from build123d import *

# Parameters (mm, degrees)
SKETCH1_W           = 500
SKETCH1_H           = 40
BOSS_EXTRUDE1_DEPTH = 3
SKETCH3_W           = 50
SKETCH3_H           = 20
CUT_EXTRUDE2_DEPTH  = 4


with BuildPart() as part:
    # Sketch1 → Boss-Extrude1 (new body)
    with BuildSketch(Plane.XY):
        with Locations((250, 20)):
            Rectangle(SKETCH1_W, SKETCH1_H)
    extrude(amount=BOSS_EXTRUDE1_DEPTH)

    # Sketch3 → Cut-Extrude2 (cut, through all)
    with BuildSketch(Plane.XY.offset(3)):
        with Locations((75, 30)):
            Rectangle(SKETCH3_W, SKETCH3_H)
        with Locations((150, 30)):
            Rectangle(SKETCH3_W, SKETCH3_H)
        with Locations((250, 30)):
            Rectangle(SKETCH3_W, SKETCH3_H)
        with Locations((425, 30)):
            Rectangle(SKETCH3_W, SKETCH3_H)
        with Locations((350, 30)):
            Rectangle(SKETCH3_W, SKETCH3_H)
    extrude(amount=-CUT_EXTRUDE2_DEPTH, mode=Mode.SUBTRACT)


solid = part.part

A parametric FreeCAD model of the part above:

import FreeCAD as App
import Part
import Sketcher
from FreeCAD import Vector
Q = App.Units.Quantity

doc = App.newDocument("Part")
body = doc.addObject("PartDesign::Body", "Body")

# Sketch on XY plane
sketch1 = body.newObject("Sketcher::SketchObject", "Sketch")
sketch1.AttachmentSupport = (doc.getObject("XY_Plane"), [""])
sketch1.MapMode = "FlatFace"
sketch1.addGeometry([
    Part.LineSegment(Vector(0, 40, 0), Vector(0, 0, 0)),
    Part.LineSegment(Vector(0, 0, 0), Vector(500, 0, 0)),
    Part.LineSegment(Vector(500, 0, 0), Vector(500, 40, 0)),
    Part.LineSegment(Vector(500, 40, 0), Vector(0, 40, 0)),
], False)
sketch1.addConstraint([
    Sketcher.Constraint("Coincident", 0, 2, 1, 1),
    Sketcher.Constraint("Coincident", 1, 2, 2, 1),
    Sketcher.Constraint("Coincident", 2, 2, 3, 1),
    Sketcher.Constraint("Coincident", 3, 2, 0, 1),
    Sketcher.Constraint("Vertical", 0),
    Sketcher.Constraint("Horizontal", 1),
    Sketcher.Constraint("Vertical", 2),
    Sketcher.Constraint("Horizontal", 3),
    Sketcher.Constraint("Coincident", 0, 2, -1, 1),
    Sketcher.Constraint("DistanceX", 1, 1, 1, 2, Q("500 mm")),
    Sketcher.Constraint("DistanceY", 0, 2, 0, 1, Q("40 mm")),
])
pad1 = body.newObject("PartDesign::Pad", "Pad")
pad1.Profile = sketch1
pad1.Length = 3

# Sketch on XY plane
sketch2 = body.newObject("Sketcher::SketchObject", "Sketch001")
sketch2.AttachmentSupport = (doc.getObject("XY_Plane"), [""])
sketch2.MapMode = "FlatFace"
sketch2.AttachmentOffset = App.Placement(Vector(0, 0, 3), App.Rotation())
sketch2.addGeometry([
    Part.LineSegment(Vector(50, 40, 0), Vector(50, 20, 0)),  # 0
    Part.LineSegment(Vector(50, 20, 0), Vector(100, 20, 0)),  # 1
    Part.LineSegment(Vector(100, 20, 0), Vector(100, 40, 0)),  # 2
    Part.LineSegment(Vector(100, 40, 0), Vector(50, 40, 0)),  # 3
    Part.LineSegment(Vector(125, 40, 0), Vector(125, 20, 0)),  # 4
    Part.LineSegment(Vector(125, 20, 0), Vector(175, 20, 0)),  # 5
    Part.LineSegment(Vector(175, 20, 0), Vector(175, 40, 0)),  # 6
    Part.LineSegment(Vector(175, 40, 0), Vector(125, 40, 0)),  # 7
    Part.LineSegment(Vector(225, 40, 0), Vector(225, 20, 0)),  # 8
    Part.LineSegment(Vector(225, 20, 0), Vector(275, 20, 0)),  # 9
    Part.LineSegment(Vector(275, 20, 0), Vector(275, 40, 0)),  # 10
    Part.LineSegment(Vector(275, 40, 0), Vector(225, 40, 0)),  # 11
    Part.LineSegment(Vector(400, 40, 0), Vector(400, 20, 0)),  # 12
    Part.LineSegment(Vector(400, 20, 0), Vector(450, 20, 0)),  # 13
    Part.LineSegment(Vector(450, 20, 0), Vector(450, 40, 0)),  # 14
    Part.LineSegment(Vector(450, 40, 0), Vector(400, 40, 0)),  # 15
    Part.LineSegment(Vector(325, 40, 0), Vector(325, 20, 0)),  # 16
    Part.LineSegment(Vector(325, 20, 0), Vector(375, 20, 0)),  # 17
    Part.LineSegment(Vector(375, 20, 0), Vector(375, 40, 0)),  # 18
    Part.LineSegment(Vector(375, 40, 0), Vector(325, 40, 0)),  # 19
], False)
sketch2.addConstraint([
    Sketcher.Constraint("Coincident", 0, 2, 1, 1),
    Sketcher.Constraint("Coincident", 1, 2, 2, 1),
    Sketcher.Constraint("Coincident", 2, 2, 3, 1),
    Sketcher.Constraint("Coincident", 3, 2, 0, 1),
    Sketcher.Constraint("Coincident", 4, 2, 5, 1),
    Sketcher.Constraint("Coincident", 5, 2, 6, 1),
    Sketcher.Constraint("Coincident", 6, 2, 7, 1),
    Sketcher.Constraint("Coincident", 7, 2, 4, 1),
    Sketcher.Constraint("Coincident", 8, 2, 9, 1),
    Sketcher.Constraint("Coincident", 9, 2, 10, 1),
    Sketcher.Constraint("Coincident", 10, 2, 11, 1),
    Sketcher.Constraint("Coincident", 11, 2, 8, 1),
    Sketcher.Constraint("Coincident", 12, 2, 13, 1),
    Sketcher.Constraint("Coincident", 13, 2, 14, 1),
    Sketcher.Constraint("Coincident", 14, 2, 15, 1),
    Sketcher.Constraint("Coincident", 15, 2, 12, 1),
    Sketcher.Constraint("Coincident", 16, 2, 17, 1),
    Sketcher.Constraint("Coincident", 17, 2, 18, 1),
    Sketcher.Constraint("Coincident", 18, 2, 19, 1),
    Sketcher.Constraint("Coincident", 19, 2, 16, 1),
    Sketcher.Constraint("Vertical", 0),
    Sketcher.Constraint("Horizontal", 1),
    Sketcher.Constraint("Vertical", 2),
    Sketcher.Constraint("Horizontal", 3),
    Sketcher.Constraint("Vertical", 4),
    Sketcher.Constraint("Horizontal", 5),
    Sketcher.Constraint("Vertical", 6),
    Sketcher.Constraint("Horizontal", 7),
    Sketcher.Constraint("Vertical", 8),
    Sketcher.Constraint("Horizontal", 9),
    Sketcher.Constraint("Vertical", 10),
    Sketcher.Constraint("Horizontal", 11),
    Sketcher.Constraint("Vertical", 12),
    Sketcher.Constraint("Horizontal", 13),
    Sketcher.Constraint("Vertical", 14),
    Sketcher.Constraint("Horizontal", 15),
    Sketcher.Constraint("Vertical", 16),
    Sketcher.Constraint("Horizontal", 17),
    Sketcher.Constraint("Vertical", 18),
    Sketcher.Constraint("Horizontal", 19),
    Sketcher.Constraint("Horizontal", 1, 2, 4, 2),
    Sketcher.Constraint("Horizontal", 3, 2, 6, 2),
    Sketcher.Constraint("Horizontal", 5, 2, 8, 2),
    Sketcher.Constraint("Horizontal", 7, 2, 10, 2),
    Sketcher.Constraint("Horizontal", 9, 2, 12, 2),
    Sketcher.Constraint("Horizontal", 11, 2, 14, 2),
    Sketcher.Constraint("Horizontal", 13, 2, 16, 2),
    Sketcher.Constraint("Horizontal", 15, 2, 18, 2),
    Sketcher.Constraint("Equal", 3, 5),
    Sketcher.Constraint("Equal", 7, 9),
    Sketcher.Constraint("Equal", 11, 13),
    Sketcher.Constraint("Equal", 15, 17),
    Sketcher.Constraint("DistanceX", 1, 1, 1, 2, Q("50 mm")),
    Sketcher.Constraint("DistanceY", 0, 2, 0, 1, Q("20 mm")),
    Sketcher.Constraint("DistanceX", -1, 1, 0, 2, Q("50 mm")),
    Sketcher.Constraint("DistanceY", -1, 1, 0, 2, Q("20 mm")),
    Sketcher.Constraint("DistanceX", -1, 1, 4, 2, Q("125 mm")),
    Sketcher.Constraint("DistanceX", -1, 1, 8, 2, Q("225 mm")),
    Sketcher.Constraint("DistanceX", -1, 1, 12, 2, Q("400 mm")),
    Sketcher.Constraint("DistanceX", -1, 1, 16, 2, Q("325 mm")),
])
pocket1 = body.newObject("PartDesign::Pocket", "Pocket")
pocket1.Profile = sketch2
pocket1.Type = "ThroughAll"

doc.recompute()
